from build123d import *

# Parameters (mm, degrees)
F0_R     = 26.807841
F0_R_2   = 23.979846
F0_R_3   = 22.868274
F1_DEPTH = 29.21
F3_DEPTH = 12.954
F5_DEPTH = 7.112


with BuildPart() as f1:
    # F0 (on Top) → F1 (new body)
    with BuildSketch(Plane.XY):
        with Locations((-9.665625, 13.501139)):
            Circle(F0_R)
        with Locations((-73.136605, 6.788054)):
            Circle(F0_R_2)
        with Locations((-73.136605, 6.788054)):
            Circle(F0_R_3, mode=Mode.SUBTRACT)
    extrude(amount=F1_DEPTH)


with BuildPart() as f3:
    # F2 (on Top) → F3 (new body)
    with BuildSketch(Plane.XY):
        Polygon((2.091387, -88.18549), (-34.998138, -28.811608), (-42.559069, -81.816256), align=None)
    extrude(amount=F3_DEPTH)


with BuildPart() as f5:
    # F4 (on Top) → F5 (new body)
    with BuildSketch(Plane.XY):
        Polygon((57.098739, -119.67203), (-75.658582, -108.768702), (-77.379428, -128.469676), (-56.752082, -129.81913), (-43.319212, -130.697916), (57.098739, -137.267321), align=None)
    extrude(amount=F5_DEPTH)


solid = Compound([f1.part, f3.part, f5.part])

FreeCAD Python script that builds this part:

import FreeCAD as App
import Part
import Sketcher
from FreeCAD import Vector


def add_polygon(sketch, points):
    """Adds a closed chain of lines whose ends are joined by coincident constraints."""
    first, n = sketch.GeometryCount, len(points)
    for a, b in zip(points, points[1:] + points[:1]):
        sketch.addGeometry(Part.LineSegment(App.Vector(*a, 0), App.Vector(*b, 0)), False)
    for i in range(n):
        sketch.addConstraint(Sketcher.Constraint("Coincident", first + i, 2, first + (i + 1) % n, 1))

doc = App.newDocument("Part")
params = doc.addObject("Spreadsheet::Sheet", "Params")
for row, (alias, value) in enumerate([
    ("pad1_length", "1.15 in"),
    ("pad2_length", "0.51 in"),
    ("pad3_length", "0.28 in"),
], start=1):
    params.set(f"A{row}", alias)
    params.set(f"B{row}", "=" + value)
    params.setAlias(f"B{row}", alias)

body = doc.addObject("PartDesign::Body", "Body")
body.AllowCompound = True

# Sketch on XY plane
sketch1 = doc.addObject("Sketcher::SketchObject", "Sketch")
body.addObject(sketch1)
sketch1.AttachmentSupport = (doc.XY_Plane, [""])
sketch1.MapMode = "FlatFace"
sketch1.addGeometry([
    Part.Circle(Vector(-10, 14, 0), Vector(0, 0, 1), 27),
    Part.Circle(Vector(-73, 7, 0), Vector(0, 0, 1), 24),
    Part.Circle(Vector(-73, 7, 0), Vector(0, 0, 1), 23),
], False)
sketch1.addConstraint([
    Sketcher.Constraint("Coincident", 2, 3, 1, 3),
    Sketcher.Constraint("Diameter", 1, 47.959692),
    Sketcher.Constraint("Diameter", 0, 53.615682),
    Sketcher.Constraint("Diameter", 2, 45.736548),
    Sketcher.Constraint("DistanceY", -1, 1, 0, 3, 13.501139),
    Sketcher.Constraint("DistanceX", 1, 3, 0, 3, 63.47098),
    Sketcher.Constraint("DistanceX", 0, 3, -1, 1, 9.665625),
    Sketcher.Constraint("DistanceY", -1, 1, 1, 3, 6.788054),
])
pad1 = doc.addObject("PartDesign::Pad", "Pad")
body.addObject(pad1)
pad1.Profile = sketch1
pad1.setExpression("Length", "Params.pad1_length")
body2 = doc.addObject("PartDesign::Body", "Body001")

# Sketch on XY plane
sketch2 = doc.addObject("Sketcher::SketchObject", "Sketch001")
body2.addObject(sketch2)
sketch2.AttachmentSupport = (doc.getObject("XY_Plane001"), [""])
sketch2.MapMode = "FlatFace"
add_polygon(sketch2, [(2, -88), (-35, -29), (-43, -82)])  # lines 0-2
sketch2.addConstraint([
    Sketcher.Constraint("Perpendicular", 1, 2),
    Sketcher.Constraint("DistanceX", 1, 2, -1, 1, 42.559069),
    Sketcher.Constraint("DistanceY", 2, 2, -1, 1, 88.18549),
    Sketcher.Constraint("DistanceX", 1, 2, 0, 2, 7.560931),
    Sketcher.Constraint("Distance", 0, 70.006362),
    Sketcher.Constraint("Distance", 1, 53.541203),
])
pad2 = doc.addObject("PartDesign::Pad", "Pad001")
body2.addObject(pad2)
pad2.Profile = sketch2
pad2.setExpression("Length", "Params.pad2_length")
body3 = doc.addObject("PartDesign::Body", "Body002")

# Sketch on XY plane
sketch3 = doc.addObject("Sketcher::SketchObject", "Sketch002")
body3.addObject(sketch3)
sketch3.AttachmentSupport = (doc.getObject("XY_Plane002"), [""])
sketch3.MapMode = "FlatFace"
add_polygon(sketch3, [(57, -120), (-76, -109), (-77, -128), (-57, -130), (-43, -131), (57, -137)])  # lines 0-5
sketch3.addConstraint([
    Sketcher.Constraint("Vertical", 5),
    Sketcher.Constraint("Parallel", 2, 3),
    Sketcher.Constraint("Parallel", 3, 4),
    Sketcher.Constraint("DistanceY", 5, 1, 5, 2, 17.595291),
    Sketcher.Constraint("DistanceX", 0, 2, 2, 2, 18.9065),
    Sketcher.Constraint("DistanceY", 2, 2, 5, 2, 10.1471),
    Sketcher.Constraint("Distance", 2, 20.67144),
    Sketcher.Constraint("Distance", 4, 100.632609),
    Sketcher.Constraint("DistanceX", 0, 2, -1, 1, 75.658582),
    Sketcher.Constraint("DistanceY", 2, 2, -1, 1, 129.81913),
    Sketcher.Constraint("DistanceX", -1, 1, 4, 2, 57.098739),
    Sketcher.Constraint("DistanceY", 4, 2, 0, 2, 28.498619),
])
pad3 = doc.addObject("PartDesign::Pad", "Pad002")
body3.addObject(pad3)
pad3.Profile = sketch3
pad3.setExpression("Length", "Params.pad3_length")

doc.recompute()
